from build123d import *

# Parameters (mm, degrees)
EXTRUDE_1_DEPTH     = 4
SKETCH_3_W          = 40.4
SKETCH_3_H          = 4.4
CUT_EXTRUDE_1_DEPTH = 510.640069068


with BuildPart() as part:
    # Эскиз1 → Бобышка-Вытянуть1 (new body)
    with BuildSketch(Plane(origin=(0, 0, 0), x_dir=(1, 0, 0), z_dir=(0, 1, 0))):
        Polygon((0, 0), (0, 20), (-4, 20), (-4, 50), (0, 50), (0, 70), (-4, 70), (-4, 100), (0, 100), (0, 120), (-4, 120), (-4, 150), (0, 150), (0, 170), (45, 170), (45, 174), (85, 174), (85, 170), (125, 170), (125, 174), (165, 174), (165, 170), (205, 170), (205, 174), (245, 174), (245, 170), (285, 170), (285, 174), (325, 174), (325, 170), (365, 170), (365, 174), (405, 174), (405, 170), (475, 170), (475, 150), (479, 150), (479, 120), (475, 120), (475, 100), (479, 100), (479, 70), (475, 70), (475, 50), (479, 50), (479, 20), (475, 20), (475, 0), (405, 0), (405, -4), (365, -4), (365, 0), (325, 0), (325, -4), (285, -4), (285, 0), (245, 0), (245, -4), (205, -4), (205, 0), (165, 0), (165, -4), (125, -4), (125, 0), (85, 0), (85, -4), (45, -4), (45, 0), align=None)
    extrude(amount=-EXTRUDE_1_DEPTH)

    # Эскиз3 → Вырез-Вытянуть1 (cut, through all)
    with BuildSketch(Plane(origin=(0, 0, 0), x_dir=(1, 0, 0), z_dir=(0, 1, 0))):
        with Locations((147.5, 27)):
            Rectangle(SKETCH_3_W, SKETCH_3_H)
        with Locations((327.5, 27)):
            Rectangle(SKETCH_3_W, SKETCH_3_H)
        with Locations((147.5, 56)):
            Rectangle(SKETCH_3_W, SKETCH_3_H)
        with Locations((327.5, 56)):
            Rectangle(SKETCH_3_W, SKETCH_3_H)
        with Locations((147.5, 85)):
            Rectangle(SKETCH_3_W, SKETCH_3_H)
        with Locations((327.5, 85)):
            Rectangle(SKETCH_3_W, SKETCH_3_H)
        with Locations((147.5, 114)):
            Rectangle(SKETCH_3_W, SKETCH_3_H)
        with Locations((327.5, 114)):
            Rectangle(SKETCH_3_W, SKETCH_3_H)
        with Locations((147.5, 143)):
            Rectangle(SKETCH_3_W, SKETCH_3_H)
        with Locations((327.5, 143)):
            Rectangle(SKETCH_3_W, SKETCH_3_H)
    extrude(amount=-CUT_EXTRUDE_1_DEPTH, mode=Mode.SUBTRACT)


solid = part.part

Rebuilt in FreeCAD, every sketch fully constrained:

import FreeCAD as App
import Part
import Sketcher

V = App.Vector
Q = App.Units.Quantity


def add_polygon(sketch, points):
    """Adds a closed chain of lines whose ends are joined by coincident constraints."""
    first, n = sketch.GeometryCount, len(points)
    for a, b in zip(points, points[1:] + points[:1]):
        sketch.addGeometry(Part.LineSegment(App.Vector(*a, 0), App.Vector(*b, 0)), False)
    for i in range(n):
        sketch.addConstraint(Sketcher.Constraint("Coincident", first + i, 2, first + (i + 1) % n, 1))

doc = App.newDocument("Part")
body = doc.addObject("PartDesign::Body", "Body")

# Sketch on XZ plane
sketch1 = body.newObject("Sketcher::SketchObject", "Sketch")
sketch1.AttachmentSupport = (doc.getObject("XZ_Plane"), [""])
sketch1.MapMode = "FlatFace"
add_polygon(sketch1, [(0, -20), (0, 0), (45, 0), (45, 4), (85, 4), (85, 0), (125, 0), (125, 4), (165, 4), (165, 0), (205, 0), (205, 4), (245, 4), (245, 0), (285, 0), (285, 4), (325, 4), (325, 0), (365, 0), (365, 4), (405, 4), (405, 0), (475, 0), (475, -20), (479, -20), (479, -50), (475, -50), (475, -70), (479, -70), (479, -100), (475, -100), (475, -120), (479, -120), (479, -150), (475, -150), (475, -170), (405, -170), (405, -174), (365, -174), (365, -170), (325, -170), (325, -174), (285, -174), (285, -170), (245, -170), (245, -174), (205, -174), (205, -170), (165, -170), (165, -174), (125, -174), (125, -170), (85, -170), (85, -174), (45, -174), (45, -170), (0, -170), (0, -150), (-4, -150), (-4, -120), (0, -120), (0, -100), (-4, -100), (-4, -70), (0, -70), (0, -50), (-4, -50), (-4, -20)])  # lines 0-67
sketch1.addConstraint([
    Sketcher.Constraint("Vertical", 0),
    Sketcher.Constraint("Horizontal", 1),
    Sketcher.Constraint("Vertical", 2),
    Sketcher.Constraint("Horizontal", 3),
    Sketcher.Constraint("Vertical", 4),
    Sketcher.Constraint("Horizontal", 5),
    Sketcher.Constraint("Vertical", 6),
    Sketcher.Constraint("Horizontal", 7),
    Sketcher.Constraint("Vertical", 8),
    Sketcher.Constraint("Horizontal", 9),
    Sketcher.Constraint("Vertical", 10),
    Sketcher.Constraint("Horizontal", 11),
    Sketcher.Constraint("Vertical", 12),
    Sketcher.Constraint("Horizontal", 13),
    Sketcher.Constraint("Vertical", 14),
    Sketcher.Constraint("Horizontal", 15),
    Sketcher.Constraint("Vertical", 16),
    Sketcher.Constraint("Horizontal", 17),
    Sketcher.Constraint("Vertical", 18),
    Sketcher.Constraint("Horizontal", 19),
    Sketcher.Constraint("Vertical", 20),
    Sketcher.Constraint("Horizontal", 21),
    Sketcher.Constraint("Vertical", 22),
    Sketcher.Constraint("Horizontal", 23),
    Sketcher.Constraint("Vertical", 24),
    Sketcher.Constraint("Horizontal", 25),
    Sketcher.Constraint("Vertical", 26),
    Sketcher.Constraint("Horizontal", 27),
    Sketcher.Constraint("Vertical", 28),
    Sketcher.Constraint("Horizontal", 29),
    Sketcher.Constraint("Vertical", 30),
    Sketcher.Constraint("Horizontal", 31),
    Sketcher.Constraint("Vertical", 32),
    Sketcher.Constraint("Horizontal", 33),
    Sketcher.Constraint("Vertical", 34),
    Sketcher.Constraint("Horizontal", 35),
    Sketcher.Constraint("Vertical", 36),
    Sketcher.Constraint("Horizontal", 37),
    Sketcher.Constraint("Vertical", 38),
    Sketcher.Constraint("Horizontal", 39),
    Sketcher.Constraint("Vertical", 40),
    Sketcher.Constraint("Horizontal", 41),
    Sketcher.Constraint("Vertical", 42),
    Sketcher.Constraint("Horizontal", 43),
    Sketcher.Constraint("Vertical", 44),
    Sketcher.Constraint("Horizontal", 45),
    Sketcher.Constraint("Vertical", 46),
    Sketcher.Constraint("Horizontal", 47),
    Sketcher.Constraint("Vertical", 48),
    Sketcher.Constraint("Horizontal", 49),
    Sketcher.Constraint("Vertical", 50),
    Sketcher.Constraint("Horizontal", 51),
    Sketcher.Constraint("Vertical", 52),
    Sketcher.Constraint("Horizontal", 53),
    Sketcher.Constraint("Vertical", 54),
    Sketcher.Constraint("Horizontal", 55),
    Sketcher.Constraint("Vertical", 56),
    Sketcher.Constraint("Horizontal", 57),
    Sketcher.Constraint("Vertical", 58),
    Sketcher.Constraint("Horizontal", 59),
    Sketcher.Constraint("Vertical", 60),
    Sketcher.Constraint("Horizontal", 61),
    Sketcher.Constraint("Vertical", 62),
    Sketcher.Constraint("Horizontal", 63),
    Sketcher.Constraint("Vertical", 64),
    Sketcher.Constraint("Horizontal", 65),
    Sketcher.Constraint("Vertical", 66),
    Sketcher.Constraint("Horizontal", 67),
    Sketcher.Constraint("Coincident", 0, 2, -1, 1),
    Sketcher.Constraint("PointOnObject", 4, 2, -1),
    Sketcher.Constraint("PointOnObject", 8, 2, -1),
    Sketcher.Constraint("PointOnObject", 12, 2, -1),
    Sketcher.Constraint("PointOnObject", 16, 2, -1),
    Sketcher.Constraint("PointOnObject", 20, 2, -1),
    Sketcher.Constraint("PointOnObject", 55, 2, -2),
    Sketcher.Constraint("PointOnObject", 59, 2, -2),
    Sketcher.Constraint("PointOnObject", 63, 2, -2),
    Sketcher.Constraint("Horizontal", 3, 2, 6, 2),
    Sketcher.Constraint("Horizontal", 7, 2, 10, 2),
    Sketcher.Constraint("Horizontal", 11, 2, 14, 2),
    Sketcher.Constraint("Horizontal", 15, 2, 18, 2),
    Sketcher.Constraint("Horizontal", 35, 2, 38, 2),
    Sketcher.Constraint("Horizontal", 37, 2, 40, 2),
    Sketcher.Constraint("Horizontal", 39, 2, 42, 2),
    Sketcher.Constraint("Horizontal", 41, 2, 44, 2),
    Sketcher.Constraint("Horizontal", 43, 2, 46, 2),
    Sketcher.Constraint("Horizontal", 45, 2, 48, 2),
    Sketcher.Constraint("Horizontal", 47, 2, 50, 2),
    Sketcher.Constraint("Horizontal", 49, 2, 52, 2),
    Sketcher.Constraint("Horizontal", 51, 2, 54, 2),
    Sketcher.Constraint("Horizontal", 33, 2, 56, 2),
    Sketcher.Constraint("Horizontal", 31, 2, 58, 2),
    Sketcher.Constraint("Horizontal", 29, 2, 60, 2),
    Sketcher.Constraint("Horizontal", 27, 2, 62, 2),
    Sketcher.Constraint("Horizontal", 25, 2, 64, 2),
    Sketcher.Constraint("Horizontal", 23, 2, 66, 2),
    Sketcher.Constraint("Vertical", 22, 2, 25, 2),
    Sketcher.Constraint("Vertical", 24, 2, 27, 2),
    Sketcher.Constraint("Vertical", 26, 2, 29, 2),
    Sketcher.Constraint("Vertical", 28, 2, 31, 2),
    Sketcher.Constraint("Vertical", 30, 2, 33, 2),
    Sketcher.Constraint("Vertical", 20, 2, 35, 2),
    Sketcher.Constraint("Vertical", 18, 2, 37, 2),
    Sketcher.Constraint("Vertical", 16, 2, 39, 2),
    Sketcher.Constraint("Vertical", 14, 2, 41, 2),
    Sketcher.Constraint("Vertical", 12, 2, 43, 2),
    Sketcher.Constraint("Vertical", 10, 2, 45, 2),
    Sketcher.Constraint("Vertical", 8, 2, 47, 2),
    Sketcher.Constraint("Vertical", 6, 2, 49, 2),
    Sketcher.Constraint("Vertical", 4, 2, 51, 2),
    Sketcher.Constraint("Vertical", 2, 2, 53, 2),
    Sketcher.Constraint("Vertical", 58, 2, 61, 2),
    Sketcher.Constraint("Vertical", 62, 2, 65, 2),
    Sketcher.Constraint("Equal", 3, 5),
    Sketcher.Constraint("Equal", 5, 7),
    Sketcher.Constraint("Equal", 7, 9),
    Sketcher.Constraint("Equal", 9, 11),
    Sketcher.Constraint("Equal", 11, 13),
    Sketcher.Constraint("Equal", 13, 15),
    Sketcher.Constraint("Equal", 15, 17),
    Sketcher.Constraint("Equal", 17, 19),
    Sketcher.Constraint("Equal", 33, 57),
    Sketcher.Constraint("Equal", 67, 2),
    Sketcher.Constraint("Equal", 22, 26),
    Sketcher.Constraint("Equal", 24, 28),
    Sketcher.Constraint("Equal", 26, 30),
    Sketcher.Constraint("Equal", 28, 32),
    Sketcher.Constraint("Equal", 30, 34),
    Sketcher.Constraint("Equal", 20, 36),
    Sketcher.Constraint("DistanceX", 1, 1, 1, 2, Q("45 mm")),
    Sketcher.Constraint("DistanceX", 3, 1, 3, 2, Q("40 mm")),
    Sketcher.Constraint("DistanceX", 21, 1, 21, 2, Q("70 mm")),
    Sketcher.Constraint("DistanceX", 23, 1, 23, 2, Q("4 mm")),
    Sketcher.Constraint("DistanceY", 0, 1, 0, 2, Q("20 mm")),
    Sketcher.Constraint("DistanceY", 24, 2, 24, 1, Q("30 mm")),
])
pad1 = body.newObject("PartDesign::Pad", "Pad")
pad1.Profile = sketch1
pad1.Length = 4

# Sketch on XZ plane
sketch2 = body.newObject("Sketcher::SketchObject", "Sketch001")
sketch2.AttachmentSupport = (doc.getObject("XZ_Plane"), [""])
sketch2.MapMode = "FlatFace"
add_polygon(sketch2, [(127.3, -29.2), (127.3, -24.8), (167.7, -24.8), (167.7, -29.2)])  # lines 0-3
add_polygon(sketch2, [(307.3, -29.2), (307.3, -24.8), (347.7, -24.8), (347.7, -29.2)])  # lines 4-7
add_polygon(sketch2, [(127.3, -58.2), (127.3, -53.8), (167.7, -53.8), (167.7, -58.2)])  # lines 8-11
add_polygon(sketch2, [(307.3, -58.2), (307.3, -53.8), (347.7, -53.8), (347.7, -58.2)])  # lines 12-15
add_polygon(sketch2, [(127.3, -87.2), (127.3, -82.8), (167.7, -82.8), (167.7, -87.2)])  # lines 16-19
add_polygon(sketch2, [(307.3, -87.2), (307.3, -82.8), (347.7, -82.8), (347.7, -87.2)])  # lines 20-23
add_polygon(sketch2, [(127.3, -116.2), (127.3, -111.8), (167.7, -111.8), (167.7, -116.2)])  # lines 24-27
add_polygon(sketch2, [(307.3, -116.2), (307.3, -111.8), (347.7, -111.8), (347.7, -116.2)])  # lines 28-31
add_polygon(sketch2, [(127.3, -145.2), (127.3, -140.8), (167.7, -140.8), (167.7, -145.2)])  # lines 32-35
add_polygon(sketch2, [(307.3, -145.2), (307.3, -140.8), (347.7, -140.8), (347.7, -145.2)])  # lines 36-39
sketch2.addConstraint([
    Sketcher.Constraint("Vertical", 0),
    Sketcher.Constraint("Horizontal", 1),
    Sketcher.Constraint("Vertical", 2),
    Sketcher.Constraint("Horizontal", 3),
    Sketcher.Constraint("Vertical", 4),
    Sketcher.Constraint("Horizontal", 5),
    Sketcher.Constraint("Vertical", 6),
    Sketcher.Constraint("Horizontal", 7),
    Sketcher.Constraint("Vertical", 8),
    Sketcher.Constraint("Horizontal", 9),
    Sketcher.Constraint("Vertical", 10),
    Sketcher.Constraint("Horizontal", 11),
    Sketcher.Constraint("Vertical", 12),
    Sketcher.Constraint("Horizontal", 13),
    Sketcher.Constraint("Vertical", 14),
    Sketcher.Constraint("Horizontal", 15),
    Sketcher.Constraint("Vertical", 16),
    Sketcher.Constraint("Horizontal", 17),
    Sketcher.Constraint("Vertical", 18),
    Sketcher.Constraint("Horizontal", 19),
    Sketcher.Constraint("Vertical", 20),
    Sketcher.Constraint("Horizontal", 21),
    Sketcher.Constraint("Vertical", 22),
    Sketcher.Constraint("Horizontal", 23),
    Sketcher.Constraint("Vertical", 24),
    Sketcher.Constraint("Horizontal", 25),
    Sketcher.Constraint("Vertical", 26),
    Sketcher.Constraint("Horizontal", 27),
    Sketcher.Constraint("Vertical", 28),
    Sketcher.Constraint("Horizontal", 29),
    Sketcher.Constraint("Vertical", 30),
    Sketcher.Constraint("Horizontal", 31),
    Sketcher.Constraint("Vertical", 32),
    Sketcher.Constraint("Horizontal", 33),
    Sketcher.Constraint("Vertical", 34),
    Sketcher.Constraint("Horizontal", 35),
    Sketcher.Constraint("Vertical", 36),
    Sketcher.Constraint("Horizontal", 37),
    Sketcher.Constraint("Vertical", 38),
    Sketcher.Constraint("Horizontal", 39),
    Sketcher.Constraint("Horizontal", 1, 2, 4, 2),
    Sketcher.Constraint("Horizontal", 3, 2, 6, 2),
    Sketcher.Constraint("Horizontal", 9, 2, 12, 2),
    Sketcher.Constraint("Horizontal", 11, 2, 14, 2),
    Sketcher.Constraint("Horizontal", 17, 2, 20, 2),
    Sketcher.Constraint("Horizontal", 19, 2, 22, 2),
    Sketcher.Constraint("Horizontal", 25, 2, 28, 2),
    Sketcher.Constraint("Horizontal", 27, 2, 30, 2),
    Sketcher.Constraint("Horizontal", 33, 2, 36, 2),
    Sketcher.Constraint("Horizontal", 35, 2, 38, 2),
    Sketcher.Constraint("Vertical", 3, 2, 8, 2),
    Sketcher.Constraint("Vertical", 2, 2, 9, 2),
    Sketcher.Constraint("Vertical", 7, 2, 12, 2),
    Sketcher.Constraint("Vertical", 6, 2, 13, 2),
    Sketcher.Constraint("Vertical", 11, 2, 16, 2),
    Sketcher.Constraint("Vertical", 10, 2, 17, 2),
    Sketcher.Constraint("Vertical", 15, 2, 20, 2),
    Sketcher.Constraint("Vertical", 14, 2, 21, 2),
    Sketcher.Constraint("Vertical", 19, 2, 24, 2),
    Sketcher.Constraint("Vertical", 18, 2, 25, 2),
    Sketcher.Constraint("Vertical", 23, 2, 28, 2),
    Sketcher.Constraint("Vertical", 22, 2, 29, 2),
    Sketcher.Constraint("Vertical", 27, 2, 32, 2),
    Sketcher.Constraint("Vertical", 26, 2, 33, 2),
    Sketcher.Constraint("Vertical", 31, 2, 36, 2),
    Sketcher.Constraint("Vertical", 30, 2, 37, 2),
    Sketcher.Constraint("Equal", 3, 5),
    Sketcher.Constraint("Equal", 6, 8),
    Sketcher.Constraint("Equal", 14, 16),
    Sketcher.Constraint("Equal", 22, 24),
    Sketcher.Constraint("Equal", 30, 32),
    Sketcher.Constraint("DistanceX", 1, 1, 1, 2, Q("40.4 mm")),
    Sketcher.Constraint("DistanceY", 0, 1, 0, 2, Q("4.4 mm")),
    Sketcher.Constraint("DistanceX", 0, 2, 4, 2, Q("180 mm")),
    Sketcher.Constraint("DistanceY", 8, 2, 0, 2, Q("29 mm")),
    Sketcher.Constraint("DistanceY", 16, 2, 8, 2, Q("29 mm")),
    Sketcher.Constraint("DistanceY", 24, 2, 16, 2, Q("29 mm")),
    Sketcher.Constraint("DistanceY", 32, 2, 24, 2, Q("29 mm")),
    Sketcher.Constraint("DistanceX", -1, 1, 0, 2, Q("127.3 mm")),
    Sketcher.Constraint("DistanceY", 0, 2, -1, 1, Q("24.8 mm")),
])
pocket1 = body.newObject("PartDesign::Pocket", "Pocket")
pocket1.Profile = sketch2
pocket1.Type = "ThroughAll"
pocket1.Reversed = True

doc.recompute()
